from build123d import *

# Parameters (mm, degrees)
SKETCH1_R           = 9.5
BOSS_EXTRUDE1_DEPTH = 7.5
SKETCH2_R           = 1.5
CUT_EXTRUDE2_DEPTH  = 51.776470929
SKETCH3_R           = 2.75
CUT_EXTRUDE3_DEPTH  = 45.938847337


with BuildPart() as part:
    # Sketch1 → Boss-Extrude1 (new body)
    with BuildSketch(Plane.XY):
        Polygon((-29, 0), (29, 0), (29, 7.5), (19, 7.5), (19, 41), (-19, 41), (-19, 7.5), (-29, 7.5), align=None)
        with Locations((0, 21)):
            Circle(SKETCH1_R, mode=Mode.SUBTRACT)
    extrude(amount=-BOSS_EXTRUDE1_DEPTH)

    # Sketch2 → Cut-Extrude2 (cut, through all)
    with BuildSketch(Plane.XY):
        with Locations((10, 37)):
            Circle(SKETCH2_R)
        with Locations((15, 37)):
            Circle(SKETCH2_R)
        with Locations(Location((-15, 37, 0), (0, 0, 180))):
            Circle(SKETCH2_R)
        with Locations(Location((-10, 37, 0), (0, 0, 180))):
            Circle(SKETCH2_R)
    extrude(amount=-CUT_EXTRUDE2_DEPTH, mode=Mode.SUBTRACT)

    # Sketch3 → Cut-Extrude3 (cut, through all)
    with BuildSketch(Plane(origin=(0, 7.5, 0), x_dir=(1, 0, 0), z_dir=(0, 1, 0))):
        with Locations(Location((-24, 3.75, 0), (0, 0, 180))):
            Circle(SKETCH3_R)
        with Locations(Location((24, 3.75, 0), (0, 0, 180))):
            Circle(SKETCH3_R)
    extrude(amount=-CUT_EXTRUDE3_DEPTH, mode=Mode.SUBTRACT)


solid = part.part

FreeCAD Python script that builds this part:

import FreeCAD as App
import Part
import Sketcher

V = App.Vector
Q = App.Units.Quantity


def add_polygon(sketch, points):
    """Adds a closed chain of lines whose ends are joined by coincident constraints."""
    first, n = sketch.GeometryCount, len(points)
    for a, b in zip(points, points[1:] + points[:1]):
        sketch.addGeometry(Part.LineSegment(App.Vector(*a, 0), App.Vector(*b, 0)), False)
    for i in range(n):
        sketch.addConstraint(Sketcher.Constraint("Coincident", first + i, 2, first + (i + 1) % n, 1))

doc = App.newDocument("Part")
body = doc.addObject("PartDesign::Body", "Body")

sketch1 = doc.addObject("Sketcher::SketchObject", "Sketch")
body.addObject(sketch1)
sketch1.AttachmentSupport = (doc.XY_Plane, [""])
sketch1.MapMode = "FlatFace"
add_polygon(sketch1, [(-29, 0), (29, 0), (29, 8), (19, 8), (19, 41), (-19, 41), (-19, 8), (-29, 8)])
sketch1.addGeometry(Part.Circle(V(0, 21, 0), V(0, 0, 1), 10), False)
sketch1.addConstraint([
    Sketcher.Constraint("Horizontal", 0),
    Sketcher.Constraint("Vertical", 1),
    Sketcher.Constraint("Horizontal", 2),
    Sketcher.Constraint("Vertical", 3),
    Sketcher.Constraint("Horizontal", 4),
    Sketcher.Constraint("Vertical", 5),
    Sketcher.Constraint("Horizontal", 6),
    Sketcher.Constraint("Vertical", 7),
    Sketcher.Constraint("Symmetric", 0, 2, 7, 2, -1, 1),
    Sketcher.Constraint("Symmetric", 2, 2, 5, 2, -2),
    Sketcher.Constraint("PointOnObject", 8, 3, -2),
    Sketcher.Constraint("Diameter", 8, Q("19 mm")),
    Sketcher.Constraint("DistanceX", 0, 1, 0, 2, Q("58 mm")),
    Sketcher.Constraint("DistanceX", 2, 2, 2, 1, Q("10 mm")),
    Sketcher.Constraint("DistanceY", 1, 1, 1, 2, Q("7.5 mm")),
    Sketcher.Constraint("DistanceY", 3, 1, 3, 2, Q("33.5 mm")),
    Sketcher.Constraint("DistanceY", -1, 1, 8, 3, Q("21 mm")),
])
pad1 = doc.addObject("PartDesign::Pad", "Pad")
body.addObject(pad1)
pad1.Profile = sketch1
pad1.Length = 7.5
pad1.Reversed = True

sketch2 = doc.addObject("Sketcher::SketchObject", "Sketch001")
body.addObject(sketch2)
sketch2.AttachmentSupport = (doc.XY_Plane, [""])
sketch2.MapMode = "FlatFace"
sketch2.addGeometry([
    Part.Circle(V(10, 37, 0), V(0, 0, 1), 1.5),
    Part.Circle(V(15, 37, 0), V(0, 0, 1), 1.5),
    Part.Circle(V(-15, 37, 0), V(0, 0, 1), 1.5),
    Part.Circle(V(-10, 37, 0), V(0, 0, 1), 1.5),
], False)
sketch2.addConstraint([
    Sketcher.Constraint("Equal", 0, 1),
    Sketcher.Constraint("Equal", 1, 2),
    Sketcher.Constraint("Equal", 2, 3),
    Sketcher.Constraint("Symmetric", 1, 3, 2, 3, -2),
    Sketcher.Constraint("Symmetric", 0, 3, 3, 3, -2),
    Sketcher.Constraint("Horizontal", 0, 3, 1, 3),
    Sketcher.Constraint("Diameter", 0, Q("3 mm")),
    Sketcher.Constraint("DistanceX", -1, 1, 0, 3, Q("10 mm")),
    Sketcher.Constraint("DistanceY", -1, 1, 0, 3, Q("37 mm")),
    Sketcher.Constraint("DistanceX", -1, 1, 1, 3, Q("15 mm")),
])
pocket1 = doc.addObject("PartDesign::Pocket", "Pocket")
body.addObject(pocket1)
pocket1.Profile = sketch2
pocket1.Type = "ThroughAll"

sketch3 = doc.addObject("Sketcher::SketchObject", "Sketch002")
body.addObject(sketch3)
sketch3.AttachmentSupport = (doc.XZ_Plane, [""])
sketch3.MapMode = "FlatFace"
sketch3.AttachmentOffset = App.Placement(V(0, 0, -7.5), App.Rotation())
sketch3.addGeometry([
    Part.Circle(V(-24, -3.8, 0), V(0, 0, 1), 2.8),
    Part.Circle(V(24, -3.8, 0), V(0, 0, 1), 2.8),
], False)
sketch3.addConstraint([
    Sketcher.Constraint("Equal", 0, 1),
    Sketcher.Constraint("Symmetric", 0, 3, 1, 3, -2),
    Sketcher.Constraint("Diameter", 0, Q("5.5 mm")),
    Sketcher.Constraint("DistanceX", 0, 3, -1, 1, Q("24 mm")),
    Sketcher.Constraint("DistanceY", 0, 3, -1, 1, Q("3.75 mm")),
])
pocket2 = doc.addObject("PartDesign::Pocket", "Pocket001")
body.addObject(pocket2)
pocket2.Profile = sketch3
pocket2.Type = "ThroughAll"
pocket2.Reversed = True

doc.recompute()
